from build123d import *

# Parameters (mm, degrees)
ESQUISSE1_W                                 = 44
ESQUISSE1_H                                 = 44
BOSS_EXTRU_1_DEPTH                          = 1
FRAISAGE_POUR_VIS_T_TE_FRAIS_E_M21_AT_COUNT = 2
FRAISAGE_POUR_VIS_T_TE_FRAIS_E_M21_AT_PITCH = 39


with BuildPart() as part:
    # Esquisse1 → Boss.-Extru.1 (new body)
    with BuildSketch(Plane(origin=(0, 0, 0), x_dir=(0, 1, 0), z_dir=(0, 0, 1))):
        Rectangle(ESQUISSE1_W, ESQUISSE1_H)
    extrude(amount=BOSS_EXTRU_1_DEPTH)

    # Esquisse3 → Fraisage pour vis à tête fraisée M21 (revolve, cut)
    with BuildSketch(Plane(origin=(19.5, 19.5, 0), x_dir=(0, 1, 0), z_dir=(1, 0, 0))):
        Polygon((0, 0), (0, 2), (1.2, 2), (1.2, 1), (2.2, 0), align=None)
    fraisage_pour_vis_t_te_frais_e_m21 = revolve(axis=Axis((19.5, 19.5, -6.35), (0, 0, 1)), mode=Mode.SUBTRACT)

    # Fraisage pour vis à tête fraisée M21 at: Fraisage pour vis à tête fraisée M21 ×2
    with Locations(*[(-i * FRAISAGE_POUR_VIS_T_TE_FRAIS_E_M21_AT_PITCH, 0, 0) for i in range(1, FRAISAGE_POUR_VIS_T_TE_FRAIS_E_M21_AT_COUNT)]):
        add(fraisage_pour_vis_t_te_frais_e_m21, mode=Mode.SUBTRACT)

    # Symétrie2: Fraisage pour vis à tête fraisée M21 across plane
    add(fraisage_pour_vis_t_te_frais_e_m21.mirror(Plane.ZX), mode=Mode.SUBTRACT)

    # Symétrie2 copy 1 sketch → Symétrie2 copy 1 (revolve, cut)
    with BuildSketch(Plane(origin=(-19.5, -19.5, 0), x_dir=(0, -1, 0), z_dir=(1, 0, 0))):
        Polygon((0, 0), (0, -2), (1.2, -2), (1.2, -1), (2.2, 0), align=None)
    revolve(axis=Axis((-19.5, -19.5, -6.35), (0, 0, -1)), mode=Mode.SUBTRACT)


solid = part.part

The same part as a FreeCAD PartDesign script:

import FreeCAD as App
import Part
import Sketcher
from FreeCAD import Vector
Q = App.Units.Quantity


def add_polygon(sketch, points):
    """Adds a closed chain of lines whose ends are joined by coincident constraints."""
    first, n = sketch.GeometryCount, len(points)
    for a, b in zip(points, points[1:] + points[:1]):
        sketch.addGeometry(Part.LineSegment(App.Vector(*a, 0), App.Vector(*b, 0)), False)
    for i in range(n):
        sketch.addConstraint(Sketcher.Constraint("Coincident", first + i, 2, first + (i + 1) % n, 1))

doc = App.newDocument("Part")
params = doc.addObject("Spreadsheet::Sheet", "Params")
for row, (alias, value) in enumerate([
    ("sketch1_width", "44 mm"),
    ("pad1_length", "1 mm"),
    ("sketch2_height", "2 mm"),
    ("sketch2_height2", "1 mm"),
    ("sketch2_width", "2.2 mm"),
    ("groove_angle", "360 deg"),
    ("linearpattern_pitch", "39 mm"),
    ("sketch3_height", "2 mm"),
    ("sketch3_height2", "1 mm"),
    ("sketch3_width", "1.2 mm"),
    ("groove2_angle", "360 deg"),
], start=1):
    params.set(f"A{row}", alias)
    params.set(f"B{row}", "=" + value)
    params.setAlias(f"B{row}", alias)

body = doc.addObject("PartDesign::Body", "Body")

sketch1 = body.newObject("Sketcher::SketchObject", "Sketch")
sketch1.AttachmentSupport = (doc.getObject("XY_Plane"), [""])
sketch1.MapMode = "FlatFace"
add_polygon(sketch1, [(-22, -22), (22, -22), (22, 22), (-22, 22)])
sketch1.addConstraint([
    Sketcher.Constraint("Horizontal", 0),
    Sketcher.Constraint("Vertical", 1),
    Sketcher.Constraint("Horizontal", 2),
    Sketcher.Constraint("Vertical", 3),
    Sketcher.Constraint("Symmetric", 0, 2, 2, 2, -1, 1),
    Sketcher.Constraint("Equal", 2, 1),
    Sketcher.Constraint("DistanceX", 0, 1, 0, 2, Q("44 mm")),
])
sketch1.setExpression("Constraints[10]", "Params.sketch1_width")
pad1 = body.newObject("PartDesign::Pad", "Pad")
pad1.Profile = sketch1
pad1.setExpression("Length", "Params.pad1_length")

sketch2 = body.newObject("Sketcher::SketchObject", "Sketch001")
sketch2.AttachmentSupport = (doc.getObject("YZ_Plane"), [""])
sketch2.MapMode = "FlatFace"
sketch2.AttachmentOffset = App.Placement(Vector(0, 0, 19.5), App.Rotation())
add_polygon(sketch2, [(19.5, 2), (19.5, 0), (21.7, 0), (20.7, 1), (20.7, 2)])
sketch2.addGeometry(Part.LineSegment(Vector(19.5, 0, 0), Vector(19.5, 2, 0)), True)
sketch2.addConstraint([
    Sketcher.Constraint("Vertical", 0),
    Sketcher.Constraint("Horizontal", 1),
    Sketcher.Constraint("Vertical", 3),
    Sketcher.Constraint("Horizontal", 4),
    Sketcher.Constraint("Vertical", 5),
    Sketcher.Constraint("Coincident", 5, 1, 0, 2),
    Sketcher.Constraint("PointOnObject", 0, 2, -1),
    Sketcher.Constraint("Horizontal", 3, 2, 5, 2),
    Sketcher.Constraint("DistanceY", 0, 2, 0, 1, Q("2 mm")),
    Sketcher.Constraint("DistanceY", 3, 1, 3, 2, Q("1 mm")),
    Sketcher.Constraint("Angle", 2, Q("135 deg")),
    Sketcher.Constraint("DistanceX", 1, 1, 1, 2, Q("2.2 mm")),
    Sketcher.Constraint("DistanceX", -1, 1, 0, 2, Q("19.5 mm")),
])
sketch2.setExpression("Constraints[13]", "Params.sketch2_height")
sketch2.setExpression("Constraints[14]", "Params.sketch2_height2")
sketch2.setExpression("Constraints[16]", "Params.sketch2_width")
groove = body.newObject("PartDesign::Groove", "Groove")
groove.Profile = sketch2
groove.ReferenceAxis = (sketch2, ["Axis0"])
groove.setExpression("Angle", "Params.groove_angle")
doc.recompute()

linearpattern = body.newObject("PartDesign::LinearPattern", "LinearPattern")
linearpattern.Originals = [groove]
linearpattern.Direction = (doc.getObject("X_Axis"), [""])
linearpattern.Mode = "offset"
linearpattern.setExpression("Offset", "Params.linearpattern_pitch")
linearpattern.Occurrences = 2
linearpattern.Reversed = True
body.Tip = linearpattern
doc.recompute()

mirrored = body.newObject("PartDesign::Mirrored", "Mirrored")
mirrored.Originals = [groove]
mirrored.MirrorPlane = (doc.getObject("XZ_Plane"), [""])
body.Tip = mirrored

sketch3 = body.newObject("Sketcher::SketchObject", "Sketch002")
sketch3.AttachmentSupport = (doc.getObject("YZ_Plane"), [""])
sketch3.MapMode = "FlatFace"
sketch3.AttachmentOffset = App.Placement(Vector(0, 0, -19.5), App.Rotation())
add_polygon(sketch3, [(-19.5, 0), (-19.5, 2), (-20.7, 2), (-20.7, 1), (-21.7, 0)])
sketch3.addGeometry(Part.LineSegment(Vector(-19.5, 2, 0), Vector(-19.5, 0, 0)), True)
sketch3.addConstraint([
    Sketcher.Constraint("Vertical", 0),
    Sketcher.Constraint("Horizontal", 1),
    Sketcher.Constraint("Vertical", 2),
    Sketcher.Constraint("Horizontal", 4),
    Sketcher.Constraint("Vertical", 5),
    Sketcher.Constraint("Coincident", 5, 1, 0, 2),
    Sketcher.Constraint("PointOnObject", 3, 2, -1),
    Sketcher.Constraint("PointOnObject", 5, 2, -1),
    Sketcher.Constraint("DistanceY", 0, 1, 0, 2, Q("2 mm")),
    Sketcher.Constraint("DistanceY", 2, 2, 2, 1, Q("1 mm")),
    Sketcher.Constraint("Angle", 3, Q("-135 deg")),
    Sketcher.Constraint("DistanceX", 1, 2, 1, 1, Q("1.2 mm")),
    Sketcher.Constraint("DistanceX", 0, 2, -1, 1, Q("19.5 mm")),
])
sketch3.setExpression("Constraints[13]", "Params.sketch3_height")
sketch3.setExpression("Constraints[14]", "Params.sketch3_height2")
sketch3.setExpression("Constraints[16]", "Params.sketch3_width")
groove2 = body.newObject("PartDesign::Groove", "Groove001")
groove2.Profile = sketch3
groove2.ReferenceAxis = (sketch3, ["Axis0"])
groove2.setExpression("Angle", "Params.groove2_angle")

doc.recompute()
